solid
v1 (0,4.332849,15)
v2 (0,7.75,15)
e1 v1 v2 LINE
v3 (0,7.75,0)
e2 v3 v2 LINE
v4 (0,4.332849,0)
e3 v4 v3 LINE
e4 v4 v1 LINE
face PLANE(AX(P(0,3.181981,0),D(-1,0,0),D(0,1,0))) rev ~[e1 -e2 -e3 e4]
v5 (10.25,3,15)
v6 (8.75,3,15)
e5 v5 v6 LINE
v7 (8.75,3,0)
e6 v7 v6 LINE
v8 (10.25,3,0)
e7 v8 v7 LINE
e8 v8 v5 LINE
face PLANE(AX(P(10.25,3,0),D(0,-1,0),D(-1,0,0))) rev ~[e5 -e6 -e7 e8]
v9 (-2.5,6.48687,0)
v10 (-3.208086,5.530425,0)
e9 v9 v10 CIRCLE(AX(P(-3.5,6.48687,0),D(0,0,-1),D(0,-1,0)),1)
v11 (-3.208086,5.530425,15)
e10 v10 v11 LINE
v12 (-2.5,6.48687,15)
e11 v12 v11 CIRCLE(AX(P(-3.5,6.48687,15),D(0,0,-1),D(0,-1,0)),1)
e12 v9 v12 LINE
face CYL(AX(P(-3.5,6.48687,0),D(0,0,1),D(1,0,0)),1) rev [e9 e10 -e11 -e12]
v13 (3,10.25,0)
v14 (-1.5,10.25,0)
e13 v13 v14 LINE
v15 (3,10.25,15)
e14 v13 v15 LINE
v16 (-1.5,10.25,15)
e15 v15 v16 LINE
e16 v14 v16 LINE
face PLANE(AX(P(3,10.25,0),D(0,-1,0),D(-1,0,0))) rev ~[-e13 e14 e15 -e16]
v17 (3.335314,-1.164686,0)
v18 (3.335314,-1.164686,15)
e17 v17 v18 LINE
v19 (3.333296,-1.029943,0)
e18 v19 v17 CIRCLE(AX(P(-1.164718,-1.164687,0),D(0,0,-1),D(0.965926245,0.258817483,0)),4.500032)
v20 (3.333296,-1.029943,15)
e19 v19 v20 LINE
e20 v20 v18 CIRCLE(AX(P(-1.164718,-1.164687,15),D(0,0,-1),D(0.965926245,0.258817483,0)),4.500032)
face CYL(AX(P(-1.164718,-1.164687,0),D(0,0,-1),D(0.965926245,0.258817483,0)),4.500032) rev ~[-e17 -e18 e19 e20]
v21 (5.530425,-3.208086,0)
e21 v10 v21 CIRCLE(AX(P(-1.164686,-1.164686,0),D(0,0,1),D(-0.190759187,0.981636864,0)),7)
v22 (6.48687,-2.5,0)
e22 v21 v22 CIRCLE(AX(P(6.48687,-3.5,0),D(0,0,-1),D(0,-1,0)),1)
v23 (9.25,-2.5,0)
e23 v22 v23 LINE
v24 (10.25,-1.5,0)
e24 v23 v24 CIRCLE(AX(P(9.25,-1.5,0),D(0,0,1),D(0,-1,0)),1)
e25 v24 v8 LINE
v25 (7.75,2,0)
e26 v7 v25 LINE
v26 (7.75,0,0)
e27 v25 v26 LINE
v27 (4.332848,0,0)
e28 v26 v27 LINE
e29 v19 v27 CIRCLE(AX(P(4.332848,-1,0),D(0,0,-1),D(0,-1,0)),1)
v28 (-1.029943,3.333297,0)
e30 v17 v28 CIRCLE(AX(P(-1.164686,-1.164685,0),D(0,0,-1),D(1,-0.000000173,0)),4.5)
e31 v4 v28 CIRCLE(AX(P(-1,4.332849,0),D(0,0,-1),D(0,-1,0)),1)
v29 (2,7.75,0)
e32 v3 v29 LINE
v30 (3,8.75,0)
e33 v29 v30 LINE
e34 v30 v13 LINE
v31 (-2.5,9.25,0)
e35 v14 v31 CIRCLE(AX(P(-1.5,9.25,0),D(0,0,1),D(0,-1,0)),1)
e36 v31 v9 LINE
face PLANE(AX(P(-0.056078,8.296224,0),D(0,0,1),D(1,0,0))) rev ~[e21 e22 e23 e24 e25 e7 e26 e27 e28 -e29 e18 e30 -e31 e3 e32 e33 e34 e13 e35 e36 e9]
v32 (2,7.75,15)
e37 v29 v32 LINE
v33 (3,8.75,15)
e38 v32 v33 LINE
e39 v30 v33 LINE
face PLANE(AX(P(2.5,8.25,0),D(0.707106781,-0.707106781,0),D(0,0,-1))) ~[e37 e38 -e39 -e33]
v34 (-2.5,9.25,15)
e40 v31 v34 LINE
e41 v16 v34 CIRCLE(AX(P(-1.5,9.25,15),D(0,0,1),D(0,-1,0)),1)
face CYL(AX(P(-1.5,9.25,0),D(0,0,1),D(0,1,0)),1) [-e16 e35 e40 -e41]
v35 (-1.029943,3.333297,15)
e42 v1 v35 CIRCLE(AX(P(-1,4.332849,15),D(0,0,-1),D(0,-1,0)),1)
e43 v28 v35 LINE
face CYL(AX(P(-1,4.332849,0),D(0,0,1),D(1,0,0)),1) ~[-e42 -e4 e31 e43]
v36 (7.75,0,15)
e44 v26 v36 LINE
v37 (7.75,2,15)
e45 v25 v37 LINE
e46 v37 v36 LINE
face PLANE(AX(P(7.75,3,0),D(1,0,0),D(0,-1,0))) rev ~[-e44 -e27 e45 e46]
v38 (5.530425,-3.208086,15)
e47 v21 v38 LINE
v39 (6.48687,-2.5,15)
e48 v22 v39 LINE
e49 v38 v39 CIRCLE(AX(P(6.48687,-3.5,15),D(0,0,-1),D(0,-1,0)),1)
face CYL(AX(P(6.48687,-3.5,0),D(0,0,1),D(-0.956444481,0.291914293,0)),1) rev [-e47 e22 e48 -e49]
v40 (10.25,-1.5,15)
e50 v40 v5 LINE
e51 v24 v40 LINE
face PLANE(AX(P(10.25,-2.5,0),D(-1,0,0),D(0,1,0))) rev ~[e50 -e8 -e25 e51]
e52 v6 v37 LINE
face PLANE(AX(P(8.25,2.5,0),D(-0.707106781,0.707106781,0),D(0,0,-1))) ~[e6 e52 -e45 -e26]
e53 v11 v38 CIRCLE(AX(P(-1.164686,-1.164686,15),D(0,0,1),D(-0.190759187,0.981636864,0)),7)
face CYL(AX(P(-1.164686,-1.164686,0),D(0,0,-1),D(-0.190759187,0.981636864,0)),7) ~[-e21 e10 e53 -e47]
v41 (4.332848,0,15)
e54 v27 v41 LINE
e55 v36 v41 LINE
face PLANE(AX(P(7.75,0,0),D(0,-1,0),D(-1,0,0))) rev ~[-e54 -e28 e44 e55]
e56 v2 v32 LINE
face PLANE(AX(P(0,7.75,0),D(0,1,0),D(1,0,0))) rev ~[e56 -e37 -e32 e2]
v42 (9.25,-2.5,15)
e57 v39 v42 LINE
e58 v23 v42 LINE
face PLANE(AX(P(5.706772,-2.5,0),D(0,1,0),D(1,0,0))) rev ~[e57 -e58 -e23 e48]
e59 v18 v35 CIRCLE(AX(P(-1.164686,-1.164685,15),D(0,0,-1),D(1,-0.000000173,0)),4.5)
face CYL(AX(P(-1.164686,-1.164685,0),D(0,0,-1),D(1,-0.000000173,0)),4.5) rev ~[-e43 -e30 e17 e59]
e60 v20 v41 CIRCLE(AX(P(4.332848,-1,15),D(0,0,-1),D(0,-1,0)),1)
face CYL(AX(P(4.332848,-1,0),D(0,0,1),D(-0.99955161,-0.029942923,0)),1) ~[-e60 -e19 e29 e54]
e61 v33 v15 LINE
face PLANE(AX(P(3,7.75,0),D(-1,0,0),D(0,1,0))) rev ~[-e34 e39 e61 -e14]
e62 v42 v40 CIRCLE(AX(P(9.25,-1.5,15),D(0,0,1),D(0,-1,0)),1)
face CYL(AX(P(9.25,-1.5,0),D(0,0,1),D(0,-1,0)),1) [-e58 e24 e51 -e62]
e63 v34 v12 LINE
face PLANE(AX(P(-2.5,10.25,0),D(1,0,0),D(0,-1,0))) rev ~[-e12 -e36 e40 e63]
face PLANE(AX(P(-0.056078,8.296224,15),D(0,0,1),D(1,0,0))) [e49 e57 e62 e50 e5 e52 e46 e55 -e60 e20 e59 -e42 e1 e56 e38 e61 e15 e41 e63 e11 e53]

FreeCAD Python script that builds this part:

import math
import FreeCAD as App
import Part
import Sketcher


def edges_at(feature, points):
    """Names of the edges that pass closest to the given points."""
    edges = feature.Shape.Edges
    near = lambda p: min(range(len(edges)), key=lambda i: edges[i].distToShape(Part.Vertex(*p))[0])
    return sorted({f"Edge{near(p) + 1}" for p in points})

doc = App.newDocument("Part")
body = doc.addObject("PartDesign::Body", "Body")

sketch1 = body.newObject("Sketcher::SketchObject", "Sketch")
sketch1.AttachmentSupport = (doc.getObject("XY_Plane"), [""])
sketch1.MapMode = "FlatFace"
sketch1.addGeometry(Part.LineSegment(App.Vector(0, 7.75, 0), App.Vector(3, 7.75, 0)), False)
sketch1.addGeometry(Part.LineSegment(App.Vector(3, 7.75, 0), App.Vector(3, 10.25, 0)), False)
sketch1.addGeometry(Part.LineSegment(App.Vector(3, 10.25, 0), App.Vector(-2.5, 10.25, 0)), False)
sketch1.addGeometry(Part.LineSegment(App.Vector(-2.5, 10.25, 0), App.Vector(-2.5, 5.706772, 0)), False)
sketch1.addGeometry(Part.ArcOfCircle(Part.Circle(App.Vector(-1.164686, -1.164686, 0), App.Vector(0, 0, 1), 7), math.radians(100.997093), math.radians(349.002907)), False)
sketch1.addGeometry(Part.LineSegment(App.Vector(5.706772, -2.5, 0), App.Vector(10.25, -2.5, 0)), False)
sketch1.addGeometry(Part.LineSegment(App.Vector(10.25, -2.5, 0), App.Vector(10.25, 3, 0)), False)
sketch1.addGeometry(Part.LineSegment(App.Vector(10.25, 3, 0), App.Vector(7.75, 3, 0)), False)
sketch1.addGeometry(Part.LineSegment(App.Vector(7.75, 3, 0), App.Vector(7.75, 0, 0)), False)
sketch1.addGeometry(Part.LineSegment(App.Vector(7.75, 0, 0), App.Vector(3.181981, 0, 0)), False)
sketch1.addGeometry(Part.ArcOfCircle(Part.Circle(App.Vector(-1.164718, -1.164687, 0), App.Vector(0, 0, 1), 4.500032), math.radians(0.000013), math.radians(14.999907)), False)
sketch1.addGeometry(Part.ArcOfCircle(Part.Circle(App.Vector(-1.164686, -1.164685, 0), App.Vector(0, 0, 1), 4.5), math.radians(74.999995), math.radians(359.99999)), False)
sketch1.addGeometry(Part.LineSegment(App.Vector(0, 3.181981, 0), App.Vector(0, 7.75, 0)), False)
sketch1.addConstraint(Sketcher.Constraint("Coincident", 0, 2, 1, 1))
sketch1.addConstraint(Sketcher.Constraint("Coincident", 1, 2, 2, 1))
sketch1.addConstraint(Sketcher.Constraint("Coincident", 2, 2, 3, 1))
sketch1.addConstraint(Sketcher.Constraint("Coincident", 3, 2, 4, 1))
sketch1.addConstraint(Sketcher.Constraint("Coincident", 4, 2, 5, 1))
sketch1.addConstraint(Sketcher.Constraint("Coincident", 5, 2, 6, 1))
sketch1.addConstraint(Sketcher.Constraint("Coincident", 6, 2, 7, 1))
sketch1.addConstraint(Sketcher.Constraint("Coincident", 7, 2, 8, 1))
sketch1.addConstraint(Sketcher.Constraint("Coincident", 8, 2, 9, 1))
sketch1.addConstraint(Sketcher.Constraint("Coincident", 9, 2, 10, 2))
sketch1.addConstraint(Sketcher.Constraint("Coincident", 10, 1, 11, 2))
sketch1.addConstraint(Sketcher.Constraint("Coincident", 11, 1, 12, 1))
sketch1.addConstraint(Sketcher.Constraint("Coincident", 12, 2, 0, 1))
sketch1.addConstraint(Sketcher.Constraint("Horizontal", 0))
sketch1.addConstraint(Sketcher.Constraint("Vertical", 1))
sketch1.addConstraint(Sketcher.Constraint("Horizontal", 2))
sketch1.addConstraint(Sketcher.Constraint("Vertical", 3))
sketch1.addConstraint(Sketcher.Constraint("Horizontal", 5))
sketch1.addConstraint(Sketcher.Constraint("Vertical", 6))
sketch1.addConstraint(Sketcher.Constraint("Horizontal", 7))
sketch1.addConstraint(Sketcher.Constraint("Vertical", 8))
sketch1.addConstraint(Sketcher.Constraint("Horizontal", 9))
sketch1.addConstraint(Sketcher.Constraint("Vertical", 12))
sketch1.addConstraint(Sketcher.Constraint("Coincident", 11, 3, 4, 3))
sketch1.addConstraint(Sketcher.Constraint("PointOnObject", 8, 2, -1))
sketch1.addConstraint(Sketcher.Constraint("PointOnObject", 11, 1, -2))
sketch1.addConstraint(Sketcher.Constraint("Radius", 4, 7.0))
sketch1.addConstraint(Sketcher.Constraint("Radius", 11, 4.5))
sketch1.addConstraint(Sketcher.Constraint("DistanceX", 0, 1, 0, 2, 3.0))
sketch1.addConstraint(Sketcher.Constraint("DistanceY", 8, 2, 8, 1, 3.0))
sketch1.addConstraint(Sketcher.Constraint("DistanceX", 2, 2, 2, 1, 5.5))
sketch1.addConstraint(Sketcher.Constraint("DistanceX", 7, 2, 7, 1, 2.5))
sketch1.addConstraint(Sketcher.Constraint("DistanceY", 1, 1, 1, 2, 2.5))
sketch1.addConstraint(Sketcher.Constraint("DistanceY", 6, 1, 6, 2, 5.5))
sketch1.addConstraint(Sketcher.Constraint("DistanceY", -1, 1, 0, 2, 7.75))
sketch1.addConstraint(Sketcher.Constraint("DistanceX", -1, 1, 5, 2, 10.25))
sketch1.addConstraint(Sketcher.Constraint("Radius", 10, 4.500032))
sketch1.addConstraint(Sketcher.Constraint("DistanceX", 9, 2, 9, 1, 4.568019))
sketch1.addConstraint(Sketcher.Constraint("DistanceY", 12, 1, 12, 2, 4.568019))
sketch1.addConstraint(Sketcher.Constraint("DistanceX", 10, 3, 9, 2, 4.346699))
sketch1.addConstraint(Sketcher.Constraint("DistanceY", 10, 1, -1, 1, 1.164686))
pad1 = body.newObject("PartDesign::Pad", "Pad")
pad1.Profile = sketch1
pad1.Length = 15
doc.recompute()

chamfer = body.newObject("PartDesign::Chamfer", "Chamfer")
chamfer.Base = (pad1, edges_at(pad1, [(3, 7.75, 7.5), (7.75, 3, 7.5)]))
chamfer.Size = 1
doc.recompute()

fillet = body.newObject("PartDesign::Fillet", "Fillet")
fillet.Base = (chamfer, edges_at(chamfer, [
    (10.25, -2.5, 7.5),
    (0, 3.182, 7.5),
    (-2.5, 10.25, 7.5),
    (3.182, 0, 7.5),
    (-2.5, 5.707, 7.5),
    (5.707, -2.5, 7.5),
]))
fillet.Radius = 1

doc.recompute()
